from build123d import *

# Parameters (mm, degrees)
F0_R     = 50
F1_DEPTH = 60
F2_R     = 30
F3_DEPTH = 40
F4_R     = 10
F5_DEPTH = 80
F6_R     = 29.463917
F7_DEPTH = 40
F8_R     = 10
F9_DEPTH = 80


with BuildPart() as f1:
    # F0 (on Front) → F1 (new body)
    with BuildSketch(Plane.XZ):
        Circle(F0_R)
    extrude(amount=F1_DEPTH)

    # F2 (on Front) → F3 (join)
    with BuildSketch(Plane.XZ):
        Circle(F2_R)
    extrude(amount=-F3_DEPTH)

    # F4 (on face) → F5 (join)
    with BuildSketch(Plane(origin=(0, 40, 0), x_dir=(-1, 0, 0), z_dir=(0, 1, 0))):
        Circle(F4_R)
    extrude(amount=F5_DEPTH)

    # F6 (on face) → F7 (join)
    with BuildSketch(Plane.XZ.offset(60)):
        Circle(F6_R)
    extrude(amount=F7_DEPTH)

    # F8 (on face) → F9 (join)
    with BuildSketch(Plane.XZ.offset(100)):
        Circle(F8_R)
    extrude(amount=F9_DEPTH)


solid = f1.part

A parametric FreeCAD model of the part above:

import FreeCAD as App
import Part
import Sketcher
from FreeCAD import Vector
Q = App.Units.Quantity

doc = App.newDocument("Part")
params = doc.addObject("Spreadsheet::Sheet", "Params")
for row, (alias, value) in enumerate([
    ("sketch1_diameter", "100 mm"),
    ("pad1_length", "60 mm"),
    ("sketch2_diameter", "60 mm"),
    ("pad2_length", "40 mm"),
    ("sketch3_diameter", "20 mm"),
    ("pad3_length", "80 mm"),
    ("pad4_length", "40 mm"),
    ("sketch5_diameter", "20 mm"),
    ("pad5_length", "80 mm"),
], start=1):
    params.set(f"A{row}", alias)
    params.set(f"B{row}", "=" + value)
    params.setAlias(f"B{row}", alias)

body = doc.addObject("PartDesign::Body", "Body")

# Sketch on XZ plane
sketch1 = doc.addObject("Sketcher::SketchObject", "Sketch")
body.addObject(sketch1)
sketch1.AttachmentSupport = (doc.XZ_Plane, [""])
sketch1.MapMode = "FlatFace"
sketch1.addGeometry(Part.Circle(Vector(0, 0, 0), Vector(0, 0, 1), 50), False)
sketch1.addConstraint([
    Sketcher.Constraint("Coincident", 0, 3, -1, 1),
    Sketcher.Constraint("Diameter", 0, Q("100 mm")),
])
sketch1.setExpression("Constraints[1]", "Params.sketch1_diameter")
pad1 = doc.addObject("PartDesign::Pad", "Pad")
body.addObject(pad1)
pad1.Profile = sketch1
pad1.setExpression("Length", "Params.pad1_length")

# Sketch on XZ plane
sketch2 = doc.addObject("Sketcher::SketchObject", "Sketch001")
body.addObject(sketch2)
sketch2.AttachmentSupport = (doc.XZ_Plane, [""])
sketch2.MapMode = "FlatFace"
sketch2.addGeometry(Part.Circle(Vector(0, 0, 0), Vector(0, 0, 1), 30), False)
sketch2.addConstraint([
    Sketcher.Constraint("Coincident", 0, 3, -1, 1),
    Sketcher.Constraint("Diameter", 0, Q("60 mm")),
])
sketch2.setExpression("Constraints[1]", "Params.sketch2_diameter")
pad2 = doc.addObject("PartDesign::Pad", "Pad001")
body.addObject(pad2)
pad2.Profile = sketch2
pad2.setExpression("Length", "Params.pad2_length")
pad2.Reversed = True

# Sketch on XZ plane
sketch3 = doc.addObject("Sketcher::SketchObject", "Sketch002")
body.addObject(sketch3)
sketch3.AttachmentSupport = (doc.XZ_Plane, [""])
sketch3.MapMode = "FlatFace"
sketch3.AttachmentOffset = App.Placement(Vector(0, 0, -40), App.Rotation())
sketch3.addGeometry(Part.Circle(Vector(0, 0, 0), Vector(0, 0, 1), 10), False)
sketch3.addConstraint([
    Sketcher.Constraint("Coincident", 0, 3, -1, 1),
    Sketcher.Constraint("Diameter", 0, Q("20 mm")),
])
sketch3.setExpression("Constraints[1]", "Params.sketch3_diameter")
pad3 = doc.addObject("PartDesign::Pad", "Pad002")
body.addObject(pad3)
pad3.Profile = sketch3
pad3.setExpression("Length", "Params.pad3_length")
pad3.Reversed = True

# Sketch on XZ plane
sketch4 = doc.addObject("Sketcher::SketchObject", "Sketch003")
body.addObject(sketch4)
sketch4.AttachmentSupport = (doc.XZ_Plane, [""])
sketch4.MapMode = "FlatFace"
sketch4.AttachmentOffset = App.Placement(Vector(0, 0, 60), App.Rotation())
sketch4.addGeometry(Part.Circle(Vector(0, 0, 0), Vector(0, 0, 1), 29), False)
sketch4.addConstraint([
    Sketcher.Constraint("Coincident", 0, 3, -1, 1),
    Sketcher.Constraint("Diameter", 0, Q("58.927834 mm")),
])
pad4 = doc.addObject("PartDesign::Pad", "Pad003")
body.addObject(pad4)
pad4.Profile = sketch4
pad4.setExpression("Length", "Params.pad4_length")

# Sketch on XZ plane
sketch5 = doc.addObject("Sketcher::SketchObject", "Sketch004")
body.addObject(sketch5)
sketch5.AttachmentSupport = (doc.XZ_Plane, [""])
sketch5.MapMode = "FlatFace"
sketch5.AttachmentOffset = App.Placement(Vector(0, 0, 100), App.Rotation())
sketch5.addGeometry(Part.Circle(Vector(0, 0, 0), Vector(0, 0, 1), 10), False)
sketch5.addConstraint([
    Sketcher.Constraint("Coincident", 0, 3, -1, 1),
    Sketcher.Constraint("Diameter", 0, Q("20 mm")),
])
sketch5.setExpression("Constraints[1]", "Params.sketch5_diameter")
pad5 = doc.addObject("PartDesign::Pad", "Pad004")
body.addObject(pad5)
pad5.Profile = sketch5
pad5.setExpression("Length", "Params.pad5_length")

doc.recompute()
